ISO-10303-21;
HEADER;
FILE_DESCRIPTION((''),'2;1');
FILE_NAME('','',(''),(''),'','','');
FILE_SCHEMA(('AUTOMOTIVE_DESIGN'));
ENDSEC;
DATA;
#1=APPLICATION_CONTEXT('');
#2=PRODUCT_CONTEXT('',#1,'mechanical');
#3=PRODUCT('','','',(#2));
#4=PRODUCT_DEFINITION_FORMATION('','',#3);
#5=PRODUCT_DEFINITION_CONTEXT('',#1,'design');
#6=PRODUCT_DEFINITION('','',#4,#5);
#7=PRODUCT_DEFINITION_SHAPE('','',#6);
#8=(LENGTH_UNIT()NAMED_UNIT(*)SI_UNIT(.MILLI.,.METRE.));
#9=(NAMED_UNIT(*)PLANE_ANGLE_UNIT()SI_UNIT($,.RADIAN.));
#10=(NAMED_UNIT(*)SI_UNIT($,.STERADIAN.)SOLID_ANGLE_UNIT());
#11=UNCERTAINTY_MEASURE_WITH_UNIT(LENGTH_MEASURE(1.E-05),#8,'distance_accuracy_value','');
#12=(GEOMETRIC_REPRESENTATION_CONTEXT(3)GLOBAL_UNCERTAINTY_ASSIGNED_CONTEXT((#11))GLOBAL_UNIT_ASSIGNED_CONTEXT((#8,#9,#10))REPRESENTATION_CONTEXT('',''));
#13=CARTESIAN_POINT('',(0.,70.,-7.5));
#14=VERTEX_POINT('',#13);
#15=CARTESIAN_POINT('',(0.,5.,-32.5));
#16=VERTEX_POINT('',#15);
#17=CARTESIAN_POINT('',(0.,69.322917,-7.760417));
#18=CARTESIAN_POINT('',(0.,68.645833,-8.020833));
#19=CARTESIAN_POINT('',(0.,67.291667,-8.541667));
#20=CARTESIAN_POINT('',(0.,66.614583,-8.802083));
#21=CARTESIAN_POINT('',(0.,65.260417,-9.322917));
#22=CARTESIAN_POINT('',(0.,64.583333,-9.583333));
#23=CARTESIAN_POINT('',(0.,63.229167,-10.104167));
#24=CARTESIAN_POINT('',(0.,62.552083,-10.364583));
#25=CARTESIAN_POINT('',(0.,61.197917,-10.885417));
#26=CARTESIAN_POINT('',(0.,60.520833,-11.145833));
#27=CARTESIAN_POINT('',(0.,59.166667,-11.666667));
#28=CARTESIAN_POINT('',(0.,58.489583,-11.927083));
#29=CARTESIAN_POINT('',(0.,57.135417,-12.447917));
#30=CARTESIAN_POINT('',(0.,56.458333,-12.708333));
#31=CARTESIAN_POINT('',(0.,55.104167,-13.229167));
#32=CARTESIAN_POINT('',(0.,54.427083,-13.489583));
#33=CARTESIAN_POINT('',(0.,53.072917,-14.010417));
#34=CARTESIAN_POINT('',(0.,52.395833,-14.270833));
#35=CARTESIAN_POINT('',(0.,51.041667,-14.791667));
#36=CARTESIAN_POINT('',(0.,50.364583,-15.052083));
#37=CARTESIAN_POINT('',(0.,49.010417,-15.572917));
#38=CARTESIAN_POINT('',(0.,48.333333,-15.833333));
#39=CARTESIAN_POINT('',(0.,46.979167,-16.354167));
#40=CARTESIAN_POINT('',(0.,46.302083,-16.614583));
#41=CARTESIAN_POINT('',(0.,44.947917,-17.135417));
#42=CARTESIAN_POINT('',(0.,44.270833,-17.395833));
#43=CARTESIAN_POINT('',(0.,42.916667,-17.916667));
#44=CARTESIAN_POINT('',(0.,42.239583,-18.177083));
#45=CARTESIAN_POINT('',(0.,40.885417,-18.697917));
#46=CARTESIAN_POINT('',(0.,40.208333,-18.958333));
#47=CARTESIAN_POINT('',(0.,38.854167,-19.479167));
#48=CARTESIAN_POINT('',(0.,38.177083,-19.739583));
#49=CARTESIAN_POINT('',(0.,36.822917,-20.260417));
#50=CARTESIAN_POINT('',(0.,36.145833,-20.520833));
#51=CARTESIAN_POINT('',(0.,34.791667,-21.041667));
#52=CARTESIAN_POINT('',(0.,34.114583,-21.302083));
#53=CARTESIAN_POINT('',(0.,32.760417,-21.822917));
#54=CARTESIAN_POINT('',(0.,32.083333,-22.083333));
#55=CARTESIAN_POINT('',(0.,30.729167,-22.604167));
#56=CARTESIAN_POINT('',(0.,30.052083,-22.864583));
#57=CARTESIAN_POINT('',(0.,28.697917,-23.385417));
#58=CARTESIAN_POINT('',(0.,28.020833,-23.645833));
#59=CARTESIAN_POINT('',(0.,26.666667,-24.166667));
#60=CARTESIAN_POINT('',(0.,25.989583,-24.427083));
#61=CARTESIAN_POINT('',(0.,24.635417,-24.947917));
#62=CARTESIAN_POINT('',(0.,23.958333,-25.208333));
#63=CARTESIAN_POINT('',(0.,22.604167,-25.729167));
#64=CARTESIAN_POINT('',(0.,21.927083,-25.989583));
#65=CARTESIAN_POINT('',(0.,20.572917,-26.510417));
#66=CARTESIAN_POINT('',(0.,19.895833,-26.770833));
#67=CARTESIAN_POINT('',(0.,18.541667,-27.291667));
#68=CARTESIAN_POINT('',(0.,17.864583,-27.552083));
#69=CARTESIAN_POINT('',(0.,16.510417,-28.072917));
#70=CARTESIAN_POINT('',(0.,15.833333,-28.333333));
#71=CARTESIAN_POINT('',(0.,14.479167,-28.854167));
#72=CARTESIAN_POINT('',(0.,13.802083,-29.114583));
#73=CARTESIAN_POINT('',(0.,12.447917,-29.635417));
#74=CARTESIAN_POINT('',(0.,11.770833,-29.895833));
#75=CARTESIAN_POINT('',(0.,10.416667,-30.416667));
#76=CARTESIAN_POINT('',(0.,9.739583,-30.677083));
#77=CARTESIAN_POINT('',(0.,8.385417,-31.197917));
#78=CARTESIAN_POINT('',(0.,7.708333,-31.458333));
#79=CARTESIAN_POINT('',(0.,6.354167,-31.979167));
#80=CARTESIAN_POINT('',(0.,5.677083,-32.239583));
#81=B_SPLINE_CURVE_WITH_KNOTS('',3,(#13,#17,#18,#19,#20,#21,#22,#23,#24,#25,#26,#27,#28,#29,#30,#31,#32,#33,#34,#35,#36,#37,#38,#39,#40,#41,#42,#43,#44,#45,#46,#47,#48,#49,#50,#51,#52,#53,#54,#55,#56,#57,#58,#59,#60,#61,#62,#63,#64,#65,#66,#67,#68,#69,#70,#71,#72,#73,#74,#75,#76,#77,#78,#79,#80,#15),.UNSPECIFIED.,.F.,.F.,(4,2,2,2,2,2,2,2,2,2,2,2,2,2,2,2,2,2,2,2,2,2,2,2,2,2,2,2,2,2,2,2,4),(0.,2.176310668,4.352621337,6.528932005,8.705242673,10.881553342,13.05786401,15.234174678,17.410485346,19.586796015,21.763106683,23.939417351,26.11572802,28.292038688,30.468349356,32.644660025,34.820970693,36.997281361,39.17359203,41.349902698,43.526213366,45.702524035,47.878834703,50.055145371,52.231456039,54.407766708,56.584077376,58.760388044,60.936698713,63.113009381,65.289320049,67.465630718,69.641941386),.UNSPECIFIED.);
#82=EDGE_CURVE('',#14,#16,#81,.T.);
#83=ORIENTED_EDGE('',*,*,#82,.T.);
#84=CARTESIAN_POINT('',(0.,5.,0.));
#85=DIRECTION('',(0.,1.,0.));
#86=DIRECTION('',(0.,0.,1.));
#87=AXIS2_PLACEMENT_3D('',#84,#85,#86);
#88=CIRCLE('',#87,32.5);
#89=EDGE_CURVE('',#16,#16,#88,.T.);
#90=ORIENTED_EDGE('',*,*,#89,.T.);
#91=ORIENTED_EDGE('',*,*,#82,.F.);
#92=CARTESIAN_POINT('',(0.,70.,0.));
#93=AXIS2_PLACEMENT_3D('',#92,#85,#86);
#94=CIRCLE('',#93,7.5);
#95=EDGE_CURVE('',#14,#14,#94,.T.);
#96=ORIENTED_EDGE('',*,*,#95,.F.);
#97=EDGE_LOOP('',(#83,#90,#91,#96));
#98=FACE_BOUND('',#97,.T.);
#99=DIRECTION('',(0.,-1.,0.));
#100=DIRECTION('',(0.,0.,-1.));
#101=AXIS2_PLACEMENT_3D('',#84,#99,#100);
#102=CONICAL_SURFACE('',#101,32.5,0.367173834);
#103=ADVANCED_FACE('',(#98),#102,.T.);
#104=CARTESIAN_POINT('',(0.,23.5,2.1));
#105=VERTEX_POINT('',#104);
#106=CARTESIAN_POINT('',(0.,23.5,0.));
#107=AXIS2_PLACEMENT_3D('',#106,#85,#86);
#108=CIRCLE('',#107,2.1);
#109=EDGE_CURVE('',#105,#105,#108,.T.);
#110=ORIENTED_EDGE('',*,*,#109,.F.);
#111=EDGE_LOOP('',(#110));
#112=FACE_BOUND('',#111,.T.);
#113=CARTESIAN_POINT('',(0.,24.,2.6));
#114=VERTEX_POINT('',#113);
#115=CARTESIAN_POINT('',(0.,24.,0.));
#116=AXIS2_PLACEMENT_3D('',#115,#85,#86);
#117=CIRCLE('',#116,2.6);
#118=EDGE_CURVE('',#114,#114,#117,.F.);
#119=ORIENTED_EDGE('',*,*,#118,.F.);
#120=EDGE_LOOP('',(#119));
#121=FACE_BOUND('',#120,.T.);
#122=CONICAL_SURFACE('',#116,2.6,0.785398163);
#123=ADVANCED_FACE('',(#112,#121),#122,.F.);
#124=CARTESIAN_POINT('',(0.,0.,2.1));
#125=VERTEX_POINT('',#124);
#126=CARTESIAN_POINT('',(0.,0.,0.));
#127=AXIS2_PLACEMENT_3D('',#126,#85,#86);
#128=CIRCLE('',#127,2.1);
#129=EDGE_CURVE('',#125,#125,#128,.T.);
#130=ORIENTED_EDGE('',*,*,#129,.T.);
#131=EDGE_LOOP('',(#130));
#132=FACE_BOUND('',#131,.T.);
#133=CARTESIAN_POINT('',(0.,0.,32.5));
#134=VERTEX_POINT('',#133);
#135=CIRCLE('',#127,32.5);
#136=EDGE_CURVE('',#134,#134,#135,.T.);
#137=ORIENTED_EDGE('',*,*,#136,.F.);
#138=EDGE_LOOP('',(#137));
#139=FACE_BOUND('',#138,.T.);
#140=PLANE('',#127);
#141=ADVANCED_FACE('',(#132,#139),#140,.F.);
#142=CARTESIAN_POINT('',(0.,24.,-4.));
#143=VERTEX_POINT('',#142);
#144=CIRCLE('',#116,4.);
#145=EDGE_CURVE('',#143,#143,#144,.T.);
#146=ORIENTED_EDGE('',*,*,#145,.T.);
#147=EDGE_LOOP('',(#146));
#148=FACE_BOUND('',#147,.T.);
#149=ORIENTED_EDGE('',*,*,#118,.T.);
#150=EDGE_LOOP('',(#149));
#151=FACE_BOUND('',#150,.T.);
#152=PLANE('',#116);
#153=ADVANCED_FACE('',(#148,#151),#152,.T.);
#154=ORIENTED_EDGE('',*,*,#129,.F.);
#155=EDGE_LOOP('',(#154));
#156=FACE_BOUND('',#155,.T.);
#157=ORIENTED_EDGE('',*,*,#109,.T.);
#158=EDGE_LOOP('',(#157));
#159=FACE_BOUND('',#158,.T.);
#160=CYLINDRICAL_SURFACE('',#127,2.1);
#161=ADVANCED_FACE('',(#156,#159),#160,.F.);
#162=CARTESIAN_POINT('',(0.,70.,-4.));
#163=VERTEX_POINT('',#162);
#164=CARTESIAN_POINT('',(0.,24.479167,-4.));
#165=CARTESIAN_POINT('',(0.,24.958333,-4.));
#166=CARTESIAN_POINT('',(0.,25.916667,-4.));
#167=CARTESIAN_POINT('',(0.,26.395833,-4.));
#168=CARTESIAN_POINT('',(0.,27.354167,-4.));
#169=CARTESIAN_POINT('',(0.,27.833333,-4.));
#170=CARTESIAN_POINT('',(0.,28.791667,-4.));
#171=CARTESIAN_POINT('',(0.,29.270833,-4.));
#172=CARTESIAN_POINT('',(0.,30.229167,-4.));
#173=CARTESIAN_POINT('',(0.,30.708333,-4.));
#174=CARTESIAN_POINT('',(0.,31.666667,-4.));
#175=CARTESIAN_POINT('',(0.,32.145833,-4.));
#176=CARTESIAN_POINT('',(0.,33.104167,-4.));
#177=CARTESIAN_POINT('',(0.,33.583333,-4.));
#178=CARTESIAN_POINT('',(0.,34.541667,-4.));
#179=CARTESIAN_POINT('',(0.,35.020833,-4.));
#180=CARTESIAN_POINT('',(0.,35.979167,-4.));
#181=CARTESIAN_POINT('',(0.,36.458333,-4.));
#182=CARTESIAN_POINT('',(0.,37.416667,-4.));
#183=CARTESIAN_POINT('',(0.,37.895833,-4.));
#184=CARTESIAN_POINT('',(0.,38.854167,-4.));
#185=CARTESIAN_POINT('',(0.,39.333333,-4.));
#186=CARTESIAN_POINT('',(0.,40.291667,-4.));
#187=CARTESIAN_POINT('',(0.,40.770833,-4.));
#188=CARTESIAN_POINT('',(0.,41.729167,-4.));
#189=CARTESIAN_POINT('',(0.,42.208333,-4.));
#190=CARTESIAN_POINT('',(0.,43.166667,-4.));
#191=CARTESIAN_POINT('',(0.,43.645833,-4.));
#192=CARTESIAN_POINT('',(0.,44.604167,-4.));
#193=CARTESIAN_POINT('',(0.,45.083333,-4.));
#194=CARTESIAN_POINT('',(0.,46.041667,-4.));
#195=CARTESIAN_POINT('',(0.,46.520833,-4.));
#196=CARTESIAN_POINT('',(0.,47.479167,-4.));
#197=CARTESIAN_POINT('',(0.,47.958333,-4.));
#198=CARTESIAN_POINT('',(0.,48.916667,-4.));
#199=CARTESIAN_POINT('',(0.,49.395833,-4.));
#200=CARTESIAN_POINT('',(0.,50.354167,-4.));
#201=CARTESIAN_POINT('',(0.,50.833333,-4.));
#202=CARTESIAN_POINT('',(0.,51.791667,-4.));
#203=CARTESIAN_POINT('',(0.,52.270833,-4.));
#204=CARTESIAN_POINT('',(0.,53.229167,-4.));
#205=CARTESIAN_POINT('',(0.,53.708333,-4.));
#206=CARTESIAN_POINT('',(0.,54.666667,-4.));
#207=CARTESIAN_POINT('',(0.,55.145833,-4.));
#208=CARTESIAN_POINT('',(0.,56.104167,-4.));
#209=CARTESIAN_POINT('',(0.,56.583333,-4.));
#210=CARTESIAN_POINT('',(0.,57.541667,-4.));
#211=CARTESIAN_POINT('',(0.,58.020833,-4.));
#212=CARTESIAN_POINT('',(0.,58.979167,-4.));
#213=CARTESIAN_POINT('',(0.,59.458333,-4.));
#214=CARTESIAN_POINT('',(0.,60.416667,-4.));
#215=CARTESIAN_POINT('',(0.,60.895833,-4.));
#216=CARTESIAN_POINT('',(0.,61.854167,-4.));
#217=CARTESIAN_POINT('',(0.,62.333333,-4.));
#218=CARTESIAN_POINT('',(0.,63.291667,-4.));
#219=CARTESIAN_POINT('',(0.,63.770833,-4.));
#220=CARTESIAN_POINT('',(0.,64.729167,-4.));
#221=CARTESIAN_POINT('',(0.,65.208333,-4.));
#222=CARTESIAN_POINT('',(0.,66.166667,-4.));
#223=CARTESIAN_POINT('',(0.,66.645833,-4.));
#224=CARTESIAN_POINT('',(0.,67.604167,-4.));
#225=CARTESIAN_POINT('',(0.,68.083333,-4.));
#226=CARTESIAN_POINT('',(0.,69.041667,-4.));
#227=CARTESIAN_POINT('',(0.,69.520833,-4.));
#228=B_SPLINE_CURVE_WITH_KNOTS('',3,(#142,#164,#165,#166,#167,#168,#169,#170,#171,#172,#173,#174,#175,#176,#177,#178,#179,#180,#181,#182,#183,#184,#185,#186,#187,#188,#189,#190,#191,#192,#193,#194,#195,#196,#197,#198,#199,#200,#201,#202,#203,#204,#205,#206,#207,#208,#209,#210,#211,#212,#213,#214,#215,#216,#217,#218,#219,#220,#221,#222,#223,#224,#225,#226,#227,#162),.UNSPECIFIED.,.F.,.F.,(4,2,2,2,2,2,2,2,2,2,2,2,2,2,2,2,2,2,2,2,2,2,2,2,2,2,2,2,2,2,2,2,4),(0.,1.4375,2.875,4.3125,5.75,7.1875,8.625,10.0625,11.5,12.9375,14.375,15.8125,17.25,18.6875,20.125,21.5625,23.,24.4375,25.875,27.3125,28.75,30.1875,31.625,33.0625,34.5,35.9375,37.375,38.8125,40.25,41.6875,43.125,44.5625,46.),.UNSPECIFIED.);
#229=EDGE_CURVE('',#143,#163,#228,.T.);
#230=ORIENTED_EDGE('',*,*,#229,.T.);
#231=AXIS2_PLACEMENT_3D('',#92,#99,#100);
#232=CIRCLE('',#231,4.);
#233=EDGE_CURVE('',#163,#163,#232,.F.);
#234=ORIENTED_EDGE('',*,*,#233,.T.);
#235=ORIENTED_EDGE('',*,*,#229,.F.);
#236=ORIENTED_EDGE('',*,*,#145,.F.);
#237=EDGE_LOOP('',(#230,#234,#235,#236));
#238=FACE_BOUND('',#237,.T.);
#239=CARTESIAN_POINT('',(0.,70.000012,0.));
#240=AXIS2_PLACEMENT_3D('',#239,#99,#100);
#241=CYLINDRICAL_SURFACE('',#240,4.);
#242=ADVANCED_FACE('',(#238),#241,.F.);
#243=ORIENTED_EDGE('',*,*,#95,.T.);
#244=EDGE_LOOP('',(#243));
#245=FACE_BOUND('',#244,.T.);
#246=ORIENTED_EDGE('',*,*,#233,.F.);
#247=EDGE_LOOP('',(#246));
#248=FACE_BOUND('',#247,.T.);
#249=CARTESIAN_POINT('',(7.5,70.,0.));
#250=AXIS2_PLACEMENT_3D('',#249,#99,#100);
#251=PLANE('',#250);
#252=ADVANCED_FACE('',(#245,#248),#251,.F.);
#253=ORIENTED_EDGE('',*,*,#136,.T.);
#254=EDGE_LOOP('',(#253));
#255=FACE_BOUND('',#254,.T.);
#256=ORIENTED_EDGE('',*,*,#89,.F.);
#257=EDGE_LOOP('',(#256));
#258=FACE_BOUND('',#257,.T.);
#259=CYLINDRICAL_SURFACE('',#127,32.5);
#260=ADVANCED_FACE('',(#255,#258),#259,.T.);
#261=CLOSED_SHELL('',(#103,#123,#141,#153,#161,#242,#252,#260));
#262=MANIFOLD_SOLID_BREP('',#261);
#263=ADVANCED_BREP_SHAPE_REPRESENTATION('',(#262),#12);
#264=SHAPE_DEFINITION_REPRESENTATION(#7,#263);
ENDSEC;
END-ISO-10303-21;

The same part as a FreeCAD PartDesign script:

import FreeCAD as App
import Part
import Sketcher
from FreeCAD import Vector
Q = App.Units.Quantity


def edges_at(feature, points):
    """Names of the edges that pass closest to the given points."""
    edges = feature.Shape.Edges
    near = lambda p: min(range(len(edges)), key=lambda i: edges[i].distToShape(Part.Vertex(*p))[0])
    return sorted({f"Edge{near(p) + 1}" for p in points})

doc = App.newDocument("Part")
body = doc.addObject("PartDesign::Body", "Body")

# Sketch on XY plane
sketch1 = body.newObject("Sketcher::SketchObject", "Sketch")
sketch1.AttachmentSupport = (doc.getObject("XY_Plane"), [""])
sketch1.MapMode = "FlatFace"
sketch1.addGeometry(Part.LineSegment(Vector(0, 0, 0), Vector(32, 0, 0)), False)
sketch1.addGeometry(Part.LineSegment(Vector(32, 0, 0), Vector(32, 5, 0)), False)
sketch1.addGeometry(Part.LineSegment(Vector(32, 5, 0), Vector(8, 70, 0)), False)
sketch1.addGeometry(Part.LineSegment(Vector(8, 70, 0), Vector(0, 70, 0)), False)
sketch1.addGeometry(Part.LineSegment(Vector(0, 70, 0), Vector(0, 0, 0)), False)
sketch1.addConstraint(Sketcher.Constraint("Coincident", 0, 2, 1, 1))
sketch1.addConstraint(Sketcher.Constraint("Coincident", 1, 2, 2, 1))
sketch1.addConstraint(Sketcher.Constraint("Coincident", 2, 2, 3, 1))
sketch1.addConstraint(Sketcher.Constraint("Coincident", 3, 2, 4, 1))
sketch1.addConstraint(Sketcher.Constraint("Coincident", 4, 2, 0, 1))
sketch1.addConstraint(Sketcher.Constraint("Horizontal", 0))
sketch1.addConstraint(Sketcher.Constraint("Vertical", 1))
sketch1.addConstraint(Sketcher.Constraint("Horizontal", 3))
sketch1.addConstraint(Sketcher.Constraint("Vertical", 4))
sketch1.addConstraint(Sketcher.Constraint("Coincident", 4, 2, -1, 1))
sketch1.addConstraint(Sketcher.Constraint("DistanceY", 1, 1, 1, 2, Q("5 mm")))
sketch1.addConstraint(Sketcher.Constraint("DistanceY", 4, 2, 4, 1, Q("70 mm")))
sketch1.addConstraint(Sketcher.Constraint("DistanceX", 0, 1, 0, 2, Q("32.5 mm")))
sketch1.addConstraint(Sketcher.Constraint("DistanceX", 3, 2, 3, 1, Q("7.5 mm")))
revolution = body.newObject("PartDesign::Revolution", "Revolution")
revolution.Profile = sketch1
revolution.ReferenceAxis = (sketch1, ["V_Axis"])
revolution.Angle = 360

# Sketch on XZ plane
sketch2 = body.newObject("Sketcher::SketchObject", "Sketch001")
sketch2.AttachmentSupport = (doc.getObject("XZ_Plane"), [""])
sketch2.MapMode = "FlatFace"
sketch2.AttachmentOffset = App.Placement(Vector(0, 0, -70), App.Rotation())
sketch2.addGeometry(Part.Circle(Vector(0, 0, 0), Vector(0, 0, 1), 2.1), False)
sketch2.addConstraint(Sketcher.Constraint("Coincident", 0, 3, -1, 1))
sketch2.addConstraint(Sketcher.Constraint("Diameter", 0, Q("4.2 mm")))
pocket1 = body.newObject("PartDesign::Pocket", "Pocket")
pocket1.Profile = sketch2
pocket1.Type = "ThroughAll"
pocket1.Midplane = True

# Sketch on XZ plane
sketch3 = body.newObject("Sketcher::SketchObject", "Sketch002")
sketch3.AttachmentSupport = (doc.getObject("XZ_Plane"), [""])
sketch3.MapMode = "FlatFace"
sketch3.AttachmentOffset = App.Placement(Vector(0, 0, -70), App.Rotation())
sketch3.addGeometry(Part.Circle(Vector(0, 0, 0), Vector(0, 0, 1), 4), False)
sketch3.addConstraint(Sketcher.Constraint("Coincident", 0, 3, -1, 1))
sketch3.addConstraint(Sketcher.Constraint("Diameter", 0, Q("8 mm")))
pocket2 = body.newObject("PartDesign::Pocket", "Pocket001")
pocket2.Profile = sketch3
pocket2.Type = "TwoLengths"
pocket2.Length = 84.740671
pocket2.Length2 = 46
doc.recompute()

chamfer = body.newObject("PartDesign::Chamfer", "Chamfer")
chamfer.Base = (pocket2, edges_at(pocket2, [(0, 24, -2.1)]))
chamfer.Size = 0.5

doc.recompute()
